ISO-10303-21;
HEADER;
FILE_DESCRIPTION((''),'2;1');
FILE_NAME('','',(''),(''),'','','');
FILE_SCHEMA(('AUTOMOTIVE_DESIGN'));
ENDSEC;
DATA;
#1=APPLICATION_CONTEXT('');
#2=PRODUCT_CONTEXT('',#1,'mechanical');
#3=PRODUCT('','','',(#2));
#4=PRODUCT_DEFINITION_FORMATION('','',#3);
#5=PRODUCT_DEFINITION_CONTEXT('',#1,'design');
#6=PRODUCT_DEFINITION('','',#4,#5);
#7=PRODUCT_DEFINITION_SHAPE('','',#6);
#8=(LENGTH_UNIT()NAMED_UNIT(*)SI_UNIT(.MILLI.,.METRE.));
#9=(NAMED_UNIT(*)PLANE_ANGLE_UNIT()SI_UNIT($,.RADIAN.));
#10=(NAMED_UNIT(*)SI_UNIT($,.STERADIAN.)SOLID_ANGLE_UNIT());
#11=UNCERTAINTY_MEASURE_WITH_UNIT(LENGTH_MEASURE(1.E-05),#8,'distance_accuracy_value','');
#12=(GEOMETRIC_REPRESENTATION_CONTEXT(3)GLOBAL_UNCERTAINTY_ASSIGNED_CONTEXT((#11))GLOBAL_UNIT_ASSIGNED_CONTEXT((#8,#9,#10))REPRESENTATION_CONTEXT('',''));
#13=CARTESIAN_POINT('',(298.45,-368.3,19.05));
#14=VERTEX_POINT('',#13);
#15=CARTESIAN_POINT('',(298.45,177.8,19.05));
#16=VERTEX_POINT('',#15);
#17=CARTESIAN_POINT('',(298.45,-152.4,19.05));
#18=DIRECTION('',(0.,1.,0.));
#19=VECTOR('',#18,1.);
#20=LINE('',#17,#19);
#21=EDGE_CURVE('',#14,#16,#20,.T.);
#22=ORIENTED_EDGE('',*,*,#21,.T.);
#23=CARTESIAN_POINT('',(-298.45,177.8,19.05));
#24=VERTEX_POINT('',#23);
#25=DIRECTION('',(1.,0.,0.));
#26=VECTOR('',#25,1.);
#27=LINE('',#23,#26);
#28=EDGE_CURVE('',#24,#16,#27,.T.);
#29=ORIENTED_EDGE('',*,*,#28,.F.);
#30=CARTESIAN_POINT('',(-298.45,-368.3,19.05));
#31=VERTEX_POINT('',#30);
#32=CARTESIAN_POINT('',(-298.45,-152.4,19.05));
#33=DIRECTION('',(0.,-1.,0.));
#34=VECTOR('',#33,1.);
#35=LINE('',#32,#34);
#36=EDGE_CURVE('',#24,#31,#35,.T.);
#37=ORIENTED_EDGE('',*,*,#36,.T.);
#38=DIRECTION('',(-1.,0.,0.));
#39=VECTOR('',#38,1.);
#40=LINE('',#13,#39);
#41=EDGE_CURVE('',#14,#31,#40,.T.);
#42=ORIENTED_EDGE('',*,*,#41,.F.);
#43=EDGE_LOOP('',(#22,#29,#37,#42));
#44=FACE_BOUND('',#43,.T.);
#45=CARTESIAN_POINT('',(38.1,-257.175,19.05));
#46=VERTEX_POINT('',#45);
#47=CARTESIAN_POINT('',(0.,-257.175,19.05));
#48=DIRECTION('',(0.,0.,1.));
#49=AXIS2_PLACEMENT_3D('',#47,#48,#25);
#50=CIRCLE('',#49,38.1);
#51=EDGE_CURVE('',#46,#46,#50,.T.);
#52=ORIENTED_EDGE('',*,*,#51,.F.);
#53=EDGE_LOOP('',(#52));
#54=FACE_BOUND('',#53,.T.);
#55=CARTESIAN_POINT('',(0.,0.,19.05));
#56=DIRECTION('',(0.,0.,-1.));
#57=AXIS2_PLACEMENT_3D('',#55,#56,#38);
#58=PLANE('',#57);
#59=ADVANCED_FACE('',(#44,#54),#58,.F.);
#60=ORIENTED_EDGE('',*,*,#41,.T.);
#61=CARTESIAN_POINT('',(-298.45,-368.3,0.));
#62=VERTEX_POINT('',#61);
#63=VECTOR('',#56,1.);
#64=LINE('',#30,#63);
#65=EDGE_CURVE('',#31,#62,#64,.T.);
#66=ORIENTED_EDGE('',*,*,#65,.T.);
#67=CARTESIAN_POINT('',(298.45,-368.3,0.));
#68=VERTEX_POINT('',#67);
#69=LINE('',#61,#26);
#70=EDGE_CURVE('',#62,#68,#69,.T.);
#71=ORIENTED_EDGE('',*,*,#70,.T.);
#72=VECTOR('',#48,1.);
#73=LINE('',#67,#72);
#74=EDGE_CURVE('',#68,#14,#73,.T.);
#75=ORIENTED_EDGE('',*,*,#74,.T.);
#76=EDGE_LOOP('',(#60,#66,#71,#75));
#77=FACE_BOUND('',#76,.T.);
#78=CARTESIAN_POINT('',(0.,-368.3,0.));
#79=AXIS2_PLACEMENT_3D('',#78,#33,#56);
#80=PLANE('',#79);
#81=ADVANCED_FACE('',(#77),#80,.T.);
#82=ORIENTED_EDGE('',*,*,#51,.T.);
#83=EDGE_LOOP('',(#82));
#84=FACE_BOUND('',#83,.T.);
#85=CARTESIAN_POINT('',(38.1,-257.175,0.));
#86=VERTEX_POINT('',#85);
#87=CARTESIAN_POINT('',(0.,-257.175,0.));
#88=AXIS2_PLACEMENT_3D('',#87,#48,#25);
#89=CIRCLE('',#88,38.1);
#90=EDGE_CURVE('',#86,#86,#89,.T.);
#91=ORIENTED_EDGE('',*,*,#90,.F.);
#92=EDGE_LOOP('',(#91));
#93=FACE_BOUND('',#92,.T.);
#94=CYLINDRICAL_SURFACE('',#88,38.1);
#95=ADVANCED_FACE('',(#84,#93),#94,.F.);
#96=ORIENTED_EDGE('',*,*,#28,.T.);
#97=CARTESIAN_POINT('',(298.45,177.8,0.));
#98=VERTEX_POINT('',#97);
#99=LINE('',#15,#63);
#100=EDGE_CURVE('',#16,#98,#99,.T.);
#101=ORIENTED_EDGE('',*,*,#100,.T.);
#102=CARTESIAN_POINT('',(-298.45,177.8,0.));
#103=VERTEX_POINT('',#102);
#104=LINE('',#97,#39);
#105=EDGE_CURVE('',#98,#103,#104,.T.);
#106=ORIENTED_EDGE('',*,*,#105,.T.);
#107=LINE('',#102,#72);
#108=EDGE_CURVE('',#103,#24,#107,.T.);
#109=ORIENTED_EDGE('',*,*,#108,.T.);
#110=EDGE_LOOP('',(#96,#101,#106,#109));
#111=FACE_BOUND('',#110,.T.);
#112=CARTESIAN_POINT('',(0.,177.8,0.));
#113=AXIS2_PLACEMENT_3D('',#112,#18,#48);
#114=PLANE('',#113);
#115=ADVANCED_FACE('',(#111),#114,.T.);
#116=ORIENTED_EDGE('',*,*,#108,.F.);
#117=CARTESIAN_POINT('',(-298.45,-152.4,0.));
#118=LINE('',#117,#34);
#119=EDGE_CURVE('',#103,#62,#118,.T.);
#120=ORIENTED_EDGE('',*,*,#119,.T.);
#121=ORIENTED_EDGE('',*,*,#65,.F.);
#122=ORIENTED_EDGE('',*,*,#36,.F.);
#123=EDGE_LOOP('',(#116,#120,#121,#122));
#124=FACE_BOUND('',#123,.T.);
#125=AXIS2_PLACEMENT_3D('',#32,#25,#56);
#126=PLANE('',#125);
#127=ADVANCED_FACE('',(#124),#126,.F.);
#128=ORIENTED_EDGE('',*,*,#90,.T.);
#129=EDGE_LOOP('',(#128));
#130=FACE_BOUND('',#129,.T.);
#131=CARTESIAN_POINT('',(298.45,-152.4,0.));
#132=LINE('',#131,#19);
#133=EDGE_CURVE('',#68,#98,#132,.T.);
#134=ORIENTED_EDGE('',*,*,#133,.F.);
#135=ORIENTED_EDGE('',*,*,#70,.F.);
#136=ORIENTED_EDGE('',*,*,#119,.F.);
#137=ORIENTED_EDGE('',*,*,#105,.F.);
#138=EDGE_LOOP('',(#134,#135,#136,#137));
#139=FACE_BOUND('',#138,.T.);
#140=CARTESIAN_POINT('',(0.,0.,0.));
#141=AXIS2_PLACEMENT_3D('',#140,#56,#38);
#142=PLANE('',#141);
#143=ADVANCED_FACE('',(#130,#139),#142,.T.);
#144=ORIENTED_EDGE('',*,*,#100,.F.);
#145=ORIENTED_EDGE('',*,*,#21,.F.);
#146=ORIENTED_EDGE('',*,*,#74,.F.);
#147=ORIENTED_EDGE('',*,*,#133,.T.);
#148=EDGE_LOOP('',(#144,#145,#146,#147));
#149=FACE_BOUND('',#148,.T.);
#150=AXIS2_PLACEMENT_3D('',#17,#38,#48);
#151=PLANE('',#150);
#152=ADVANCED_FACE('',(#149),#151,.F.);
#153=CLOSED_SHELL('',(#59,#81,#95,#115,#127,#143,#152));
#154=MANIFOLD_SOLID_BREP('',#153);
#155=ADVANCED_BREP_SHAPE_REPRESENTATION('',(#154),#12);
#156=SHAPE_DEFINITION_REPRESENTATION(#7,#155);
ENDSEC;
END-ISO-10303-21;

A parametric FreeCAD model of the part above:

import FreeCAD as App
import Part
import Sketcher
Q = App.Units.Quantity


def add_polygon(sketch, points):
    """Adds a closed chain of lines whose ends are joined by coincident constraints."""
    first, n = sketch.GeometryCount, len(points)
    for a, b in zip(points, points[1:] + points[:1]):
        sketch.addGeometry(Part.LineSegment(App.Vector(*a, 0), App.Vector(*b, 0)), False)
    for i in range(n):
        sketch.addConstraint(Sketcher.Constraint("Coincident", first + i, 2, first + (i + 1) % n, 1))

doc = App.newDocument("Part")
body = doc.addObject("PartDesign::Body", "Body")

# Sketch on XY plane
sketch1 = doc.addObject("Sketcher::SketchObject", "Sketch")
body.addObject(sketch1)
sketch1.AttachmentSupport = (doc.XY_Plane, [""])
sketch1.MapMode = "FlatFace"
add_polygon(sketch1, [(-298, 152), (-298, -152), (298, -152), (298, 152)])  # lines 0-3
sketch1.addConstraint([
    Sketcher.Constraint("Vertical", 0),
    Sketcher.Constraint("Horizontal", 1),
    Sketcher.Constraint("Vertical", 2),
    Sketcher.Constraint("Horizontal", 3),
    Sketcher.Constraint("Symmetric", 0, 2, 2, 2, -1, 1),
    Sketcher.Constraint("DistanceY", 0, 2, 0, 1, Q("12 in")),
    Sketcher.Constraint("DistanceX", 1, 1, 1, 2, Q("23.5 in")),
])
pad1 = doc.addObject("PartDesign::Pad", "Pad")
body.addObject(pad1)
pad1.Profile = sketch1
pad1.Length = Q("0.75 in")

# Sketch on XZ plane
sketch2 = doc.addObject("Sketcher::SketchObject", "Sketch001")
body.addObject(sketch2)
sketch2.AttachmentSupport = (doc.XZ_Plane, [""])
sketch2.MapMode = "FlatFace"
sketch2.AttachmentOffset = App.Placement(App.Vector(0, 0, -6 * 25.4), App.Rotation())
add_polygon(sketch2, [(-298, 0), (-298, 19), (298, 19), (298, 0)])  # lines 0-3
sketch2.addConstraint([
    Sketcher.Constraint("Vertical", 0),
    Sketcher.Constraint("Horizontal", 1),
    Sketcher.Constraint("Vertical", 2),
    Sketcher.Constraint("Horizontal", 3),
    Sketcher.Constraint("Symmetric", 2, 2, 3, 2, -1, 1),
    Sketcher.Constraint("DistanceX", 1, 1, 1, 2, Q("23.5 in")),
    Sketcher.Constraint("DistanceY", 0, 1, 0, 2, Q("0.75 in")),
])
pad2 = doc.addObject("PartDesign::Pad", "Pad001")
body.addObject(pad2)
pad2.Profile = sketch2
pad2.Length = Q("1 in")
pad2.Reversed = True

# Sketch on XZ plane
sketch3 = doc.addObject("Sketcher::SketchObject", "Sketch002")
body.addObject(sketch3)
sketch3.AttachmentSupport = (doc.XZ_Plane, [""])
sketch3.MapMode = "FlatFace"
sketch3.AttachmentOffset = App.Placement(App.Vector(0, 0, 6 * 25.4), App.Rotation())
add_polygon(sketch3, [(-298, 19), (-298, 0), (298, 0), (298, 19)])  # lines 0-3
sketch3.addConstraint([
    Sketcher.Constraint("Vertical", 0),
    Sketcher.Constraint("Horizontal", 1),
    Sketcher.Constraint("Vertical", 2),
    Sketcher.Constraint("Horizontal", 3),
    Sketcher.Constraint("Symmetric", 0, 2, 1, 2, -1, 1),
    Sketcher.Constraint("DistanceX", 1, 1, 1, 2, Q("23.5 in")),
    Sketcher.Constraint("DistanceY", 0, 2, 0, 1, Q("0.75 in")),
])
pad3 = doc.addObject("PartDesign::Pad", "Pad002")
body.addObject(pad3)
pad3.Profile = sketch3
pad3.Length = Q("8.5 in")

# Sketch on XY plane
sketch4 = doc.addObject("Sketcher::SketchObject", "Sketch003")
body.addObject(sketch4)
sketch4.AttachmentSupport = (doc.XY_Plane, [""])
sketch4.MapMode = "FlatFace"
sketch4.AttachmentOffset = App.Placement(App.Vector(0, 0, 0.75 * 25.4), App.Rotation())
sketch4.addGeometry(Part.Circle(App.Vector(0, -257, 0), App.Vector(0, 0, 1), 38), False)
sketch4.addConstraint([
    Sketcher.Constraint("PointOnObject", 0, 3, -2),
    Sketcher.Constraint("Diameter", 0, Q("3 in")),
    Sketcher.Constraint("DistanceY", 0, 3, -1, 1, Q("10.125 in")),
])
pocket1 = doc.addObject("PartDesign::Pocket", "Pocket")
body.addObject(pocket1)
pocket1.Profile = sketch4
pocket1.Type = "ThroughAll"

doc.recompute()
